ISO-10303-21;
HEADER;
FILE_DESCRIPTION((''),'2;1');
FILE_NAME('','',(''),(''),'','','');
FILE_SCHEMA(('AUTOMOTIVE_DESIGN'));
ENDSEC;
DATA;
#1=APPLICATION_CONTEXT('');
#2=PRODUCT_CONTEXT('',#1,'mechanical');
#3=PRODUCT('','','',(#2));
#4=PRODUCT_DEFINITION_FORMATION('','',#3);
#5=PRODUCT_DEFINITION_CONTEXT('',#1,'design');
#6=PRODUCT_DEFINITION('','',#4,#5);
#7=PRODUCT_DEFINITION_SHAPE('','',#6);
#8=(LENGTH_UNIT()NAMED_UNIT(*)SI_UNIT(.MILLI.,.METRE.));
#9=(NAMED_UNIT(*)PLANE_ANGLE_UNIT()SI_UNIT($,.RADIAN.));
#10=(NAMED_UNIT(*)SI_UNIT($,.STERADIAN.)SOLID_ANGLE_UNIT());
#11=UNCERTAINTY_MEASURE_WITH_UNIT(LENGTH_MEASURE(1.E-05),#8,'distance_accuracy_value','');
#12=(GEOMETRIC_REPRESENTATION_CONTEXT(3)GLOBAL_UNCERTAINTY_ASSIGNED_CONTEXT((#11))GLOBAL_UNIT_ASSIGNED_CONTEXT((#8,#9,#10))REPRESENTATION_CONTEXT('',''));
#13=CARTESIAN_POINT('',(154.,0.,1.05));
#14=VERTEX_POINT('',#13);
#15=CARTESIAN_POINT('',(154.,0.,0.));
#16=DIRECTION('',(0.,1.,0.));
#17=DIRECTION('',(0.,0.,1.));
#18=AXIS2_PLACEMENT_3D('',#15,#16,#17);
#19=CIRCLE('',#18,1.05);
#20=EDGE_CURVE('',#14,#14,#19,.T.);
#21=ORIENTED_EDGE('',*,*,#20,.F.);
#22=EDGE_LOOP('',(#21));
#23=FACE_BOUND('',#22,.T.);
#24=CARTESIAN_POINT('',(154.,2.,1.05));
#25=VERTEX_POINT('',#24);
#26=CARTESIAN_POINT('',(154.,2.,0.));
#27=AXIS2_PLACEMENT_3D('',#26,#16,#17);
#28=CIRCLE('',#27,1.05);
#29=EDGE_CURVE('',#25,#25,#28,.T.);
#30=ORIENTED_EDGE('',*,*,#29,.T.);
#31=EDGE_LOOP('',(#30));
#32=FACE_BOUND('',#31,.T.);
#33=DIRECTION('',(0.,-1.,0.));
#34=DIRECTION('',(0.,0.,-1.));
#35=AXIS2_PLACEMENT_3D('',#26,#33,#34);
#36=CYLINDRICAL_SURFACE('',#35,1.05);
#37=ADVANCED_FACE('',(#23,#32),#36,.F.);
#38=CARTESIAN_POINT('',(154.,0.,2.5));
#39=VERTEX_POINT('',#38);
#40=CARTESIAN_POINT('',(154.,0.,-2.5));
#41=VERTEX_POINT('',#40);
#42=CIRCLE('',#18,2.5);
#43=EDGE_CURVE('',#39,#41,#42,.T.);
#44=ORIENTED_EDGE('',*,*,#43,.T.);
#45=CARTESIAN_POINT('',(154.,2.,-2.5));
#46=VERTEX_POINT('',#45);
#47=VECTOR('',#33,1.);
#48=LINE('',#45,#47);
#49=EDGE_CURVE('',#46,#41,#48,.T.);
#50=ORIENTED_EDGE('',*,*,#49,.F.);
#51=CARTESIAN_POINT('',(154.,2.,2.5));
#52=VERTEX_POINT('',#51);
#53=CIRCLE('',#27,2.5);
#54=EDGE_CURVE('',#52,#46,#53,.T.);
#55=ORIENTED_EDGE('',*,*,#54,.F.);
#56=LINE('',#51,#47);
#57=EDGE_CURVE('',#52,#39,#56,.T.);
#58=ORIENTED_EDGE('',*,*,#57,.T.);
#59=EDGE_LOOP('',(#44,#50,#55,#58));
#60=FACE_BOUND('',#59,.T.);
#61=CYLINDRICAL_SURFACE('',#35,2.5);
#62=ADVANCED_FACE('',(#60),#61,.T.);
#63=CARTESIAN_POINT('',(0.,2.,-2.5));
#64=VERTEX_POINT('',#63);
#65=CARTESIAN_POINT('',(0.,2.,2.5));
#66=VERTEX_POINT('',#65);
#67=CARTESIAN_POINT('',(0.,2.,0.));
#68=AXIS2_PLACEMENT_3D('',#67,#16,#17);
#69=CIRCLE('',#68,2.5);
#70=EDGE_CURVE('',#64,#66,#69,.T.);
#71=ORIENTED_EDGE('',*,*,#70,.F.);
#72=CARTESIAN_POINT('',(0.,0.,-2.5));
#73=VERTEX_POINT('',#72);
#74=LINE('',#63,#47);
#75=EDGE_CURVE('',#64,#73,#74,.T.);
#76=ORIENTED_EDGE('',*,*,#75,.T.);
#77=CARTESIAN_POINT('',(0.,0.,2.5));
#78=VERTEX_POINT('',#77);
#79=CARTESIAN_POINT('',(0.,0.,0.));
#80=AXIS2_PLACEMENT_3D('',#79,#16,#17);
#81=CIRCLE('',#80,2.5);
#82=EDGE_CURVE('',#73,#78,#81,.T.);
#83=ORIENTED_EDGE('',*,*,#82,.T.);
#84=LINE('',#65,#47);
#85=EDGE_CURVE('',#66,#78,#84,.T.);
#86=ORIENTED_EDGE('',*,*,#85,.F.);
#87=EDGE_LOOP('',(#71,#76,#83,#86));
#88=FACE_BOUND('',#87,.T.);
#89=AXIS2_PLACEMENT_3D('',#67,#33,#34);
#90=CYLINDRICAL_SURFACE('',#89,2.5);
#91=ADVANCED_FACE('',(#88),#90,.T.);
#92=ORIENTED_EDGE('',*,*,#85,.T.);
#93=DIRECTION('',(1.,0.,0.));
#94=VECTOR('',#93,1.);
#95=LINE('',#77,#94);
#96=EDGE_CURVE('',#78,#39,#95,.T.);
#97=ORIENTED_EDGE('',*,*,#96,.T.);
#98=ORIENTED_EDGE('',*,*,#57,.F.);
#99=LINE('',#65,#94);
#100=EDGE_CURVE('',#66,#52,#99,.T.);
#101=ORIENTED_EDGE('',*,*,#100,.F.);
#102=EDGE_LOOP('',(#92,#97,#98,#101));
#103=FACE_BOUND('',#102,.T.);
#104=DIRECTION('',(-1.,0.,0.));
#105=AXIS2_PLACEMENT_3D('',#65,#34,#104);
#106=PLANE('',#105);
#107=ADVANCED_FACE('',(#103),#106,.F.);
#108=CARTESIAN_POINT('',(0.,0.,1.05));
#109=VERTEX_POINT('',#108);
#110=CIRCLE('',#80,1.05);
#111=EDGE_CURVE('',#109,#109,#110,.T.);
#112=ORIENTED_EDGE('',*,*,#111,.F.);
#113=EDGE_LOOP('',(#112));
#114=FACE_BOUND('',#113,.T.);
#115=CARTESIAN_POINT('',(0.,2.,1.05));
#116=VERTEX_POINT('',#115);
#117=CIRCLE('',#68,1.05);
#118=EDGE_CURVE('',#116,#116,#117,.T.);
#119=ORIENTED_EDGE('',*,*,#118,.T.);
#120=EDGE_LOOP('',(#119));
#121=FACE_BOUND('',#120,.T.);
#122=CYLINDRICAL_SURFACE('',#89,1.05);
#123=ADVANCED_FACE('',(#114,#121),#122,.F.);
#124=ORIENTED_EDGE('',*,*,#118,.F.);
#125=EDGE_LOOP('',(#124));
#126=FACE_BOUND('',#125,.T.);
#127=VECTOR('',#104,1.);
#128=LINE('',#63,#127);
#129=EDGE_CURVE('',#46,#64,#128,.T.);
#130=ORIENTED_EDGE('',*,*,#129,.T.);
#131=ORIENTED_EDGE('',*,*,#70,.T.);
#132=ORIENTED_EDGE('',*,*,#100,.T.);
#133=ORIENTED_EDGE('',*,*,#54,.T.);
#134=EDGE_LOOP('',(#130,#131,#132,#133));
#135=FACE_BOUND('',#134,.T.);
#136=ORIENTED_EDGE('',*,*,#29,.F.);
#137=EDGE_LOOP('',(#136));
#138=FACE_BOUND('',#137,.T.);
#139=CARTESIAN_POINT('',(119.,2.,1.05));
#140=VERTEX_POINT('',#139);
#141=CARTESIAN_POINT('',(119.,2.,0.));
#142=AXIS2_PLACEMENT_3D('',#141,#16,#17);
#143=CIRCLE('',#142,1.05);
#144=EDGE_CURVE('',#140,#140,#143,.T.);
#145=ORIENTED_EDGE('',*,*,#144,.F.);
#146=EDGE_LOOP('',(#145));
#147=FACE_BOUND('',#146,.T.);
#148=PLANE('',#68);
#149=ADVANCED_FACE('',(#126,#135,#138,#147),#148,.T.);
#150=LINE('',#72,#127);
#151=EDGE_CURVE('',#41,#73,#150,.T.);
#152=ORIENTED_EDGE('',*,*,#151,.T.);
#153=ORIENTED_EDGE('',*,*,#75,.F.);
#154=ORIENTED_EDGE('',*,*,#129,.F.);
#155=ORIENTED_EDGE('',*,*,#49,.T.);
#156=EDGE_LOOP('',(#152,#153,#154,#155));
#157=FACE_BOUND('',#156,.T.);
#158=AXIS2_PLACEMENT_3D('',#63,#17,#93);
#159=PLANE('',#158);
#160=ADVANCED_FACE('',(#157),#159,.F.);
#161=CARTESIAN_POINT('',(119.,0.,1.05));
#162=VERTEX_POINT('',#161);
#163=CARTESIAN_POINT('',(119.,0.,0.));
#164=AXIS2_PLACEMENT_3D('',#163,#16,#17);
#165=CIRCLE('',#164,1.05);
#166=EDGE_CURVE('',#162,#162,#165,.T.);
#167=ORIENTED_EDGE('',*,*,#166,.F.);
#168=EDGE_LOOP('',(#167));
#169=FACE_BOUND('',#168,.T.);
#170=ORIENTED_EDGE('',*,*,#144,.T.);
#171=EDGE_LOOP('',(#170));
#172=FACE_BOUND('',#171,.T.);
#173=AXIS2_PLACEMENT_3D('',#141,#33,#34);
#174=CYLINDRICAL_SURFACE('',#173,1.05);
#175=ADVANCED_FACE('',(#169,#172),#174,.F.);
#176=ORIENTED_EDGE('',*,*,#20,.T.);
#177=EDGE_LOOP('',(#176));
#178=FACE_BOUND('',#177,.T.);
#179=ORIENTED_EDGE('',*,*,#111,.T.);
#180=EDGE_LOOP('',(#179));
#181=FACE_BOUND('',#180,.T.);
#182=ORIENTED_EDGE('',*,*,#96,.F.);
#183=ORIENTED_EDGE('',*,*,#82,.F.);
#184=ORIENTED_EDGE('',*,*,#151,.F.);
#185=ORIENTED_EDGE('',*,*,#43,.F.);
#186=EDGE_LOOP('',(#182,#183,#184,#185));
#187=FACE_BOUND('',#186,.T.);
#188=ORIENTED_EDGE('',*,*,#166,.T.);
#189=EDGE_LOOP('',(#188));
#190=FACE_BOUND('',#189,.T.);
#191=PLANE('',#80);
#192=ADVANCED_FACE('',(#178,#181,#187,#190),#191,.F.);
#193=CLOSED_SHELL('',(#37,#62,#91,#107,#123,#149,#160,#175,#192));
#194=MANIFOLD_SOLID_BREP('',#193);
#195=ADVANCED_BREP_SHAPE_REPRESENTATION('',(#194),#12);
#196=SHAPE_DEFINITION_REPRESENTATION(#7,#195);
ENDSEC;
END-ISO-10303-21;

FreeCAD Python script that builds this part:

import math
import FreeCAD as App
import Part
import Sketcher
from FreeCAD import Vector
Q = App.Units.Quantity

doc = App.newDocument("Part")
body = doc.addObject("PartDesign::Body", "Body")

sketch1 = body.newObject("Sketcher::SketchObject", "Sketch")
sketch1.AttachmentSupport = (doc.getObject("XZ_Plane"), [""])
sketch1.MapMode = "FlatFace"
sketch1.addGeometry([
    Part.LineSegment(Vector(154, -2.5, 0), Vector(0, -2.5, 0)),
    Part.ArcOfCircle(Part.Circle(Vector(0, 0, 0), Vector(0, 0, 1), 2.5), math.radians(90), math.radians(270)),
    Part.LineSegment(Vector(0, 2.5, 0), Vector(154, 2.5, 0)),
    Part.ArcOfCircle(Part.Circle(Vector(154, 0, 0), Vector(0, 0, 1), 2.5), math.radians(-90), math.radians(90)),
    Part.Circle(Vector(154, 0, 0), Vector(0, 0, 1), 1.1),
    Part.Circle(Vector(119, 0, 0), Vector(0, 0, 1), 1.1),
    Part.Circle(Vector(0, 0, 0), Vector(0, 0, 1), 1.1),
], False)
sketch1.addConstraint([
    Sketcher.Constraint("Tangent", 0, 2, 1, 2),
    Sketcher.Constraint("Tangent", 1, 1, 2, 1),
    Sketcher.Constraint("Tangent", 2, 2, 3, 2),
    Sketcher.Constraint("Tangent", 3, 1, 0, 1),
    Sketcher.Constraint("Horizontal", 0),
    Sketcher.Constraint("Horizontal", 2),
    Sketcher.Constraint("Coincident", 1, 3, -1, 1),
    Sketcher.Constraint("Coincident", 6, 3, -1, 1),
    Sketcher.Constraint("Coincident", 4, 3, 3, 3),
    Sketcher.Constraint("Equal", 4, 5),
    Sketcher.Constraint("Equal", 5, 6),
    Sketcher.Constraint("PointOnObject", 5, 3, -1),
    Sketcher.Constraint("Diameter", 4, Q("2.1 mm")),
    Sketcher.Constraint("Radius", 1, Q("2.5 mm")),
    Sketcher.Constraint("DistanceX", 0, 2, 0, 1, Q("154 mm")),
    Sketcher.Constraint("DistanceX", -1, 1, 5, 3, Q("119 mm")),
])
pad1 = body.newObject("PartDesign::Pad", "Pad")
pad1.Profile = sketch1
pad1.Length = 2
pad1.Reversed = True

doc.recompute()
